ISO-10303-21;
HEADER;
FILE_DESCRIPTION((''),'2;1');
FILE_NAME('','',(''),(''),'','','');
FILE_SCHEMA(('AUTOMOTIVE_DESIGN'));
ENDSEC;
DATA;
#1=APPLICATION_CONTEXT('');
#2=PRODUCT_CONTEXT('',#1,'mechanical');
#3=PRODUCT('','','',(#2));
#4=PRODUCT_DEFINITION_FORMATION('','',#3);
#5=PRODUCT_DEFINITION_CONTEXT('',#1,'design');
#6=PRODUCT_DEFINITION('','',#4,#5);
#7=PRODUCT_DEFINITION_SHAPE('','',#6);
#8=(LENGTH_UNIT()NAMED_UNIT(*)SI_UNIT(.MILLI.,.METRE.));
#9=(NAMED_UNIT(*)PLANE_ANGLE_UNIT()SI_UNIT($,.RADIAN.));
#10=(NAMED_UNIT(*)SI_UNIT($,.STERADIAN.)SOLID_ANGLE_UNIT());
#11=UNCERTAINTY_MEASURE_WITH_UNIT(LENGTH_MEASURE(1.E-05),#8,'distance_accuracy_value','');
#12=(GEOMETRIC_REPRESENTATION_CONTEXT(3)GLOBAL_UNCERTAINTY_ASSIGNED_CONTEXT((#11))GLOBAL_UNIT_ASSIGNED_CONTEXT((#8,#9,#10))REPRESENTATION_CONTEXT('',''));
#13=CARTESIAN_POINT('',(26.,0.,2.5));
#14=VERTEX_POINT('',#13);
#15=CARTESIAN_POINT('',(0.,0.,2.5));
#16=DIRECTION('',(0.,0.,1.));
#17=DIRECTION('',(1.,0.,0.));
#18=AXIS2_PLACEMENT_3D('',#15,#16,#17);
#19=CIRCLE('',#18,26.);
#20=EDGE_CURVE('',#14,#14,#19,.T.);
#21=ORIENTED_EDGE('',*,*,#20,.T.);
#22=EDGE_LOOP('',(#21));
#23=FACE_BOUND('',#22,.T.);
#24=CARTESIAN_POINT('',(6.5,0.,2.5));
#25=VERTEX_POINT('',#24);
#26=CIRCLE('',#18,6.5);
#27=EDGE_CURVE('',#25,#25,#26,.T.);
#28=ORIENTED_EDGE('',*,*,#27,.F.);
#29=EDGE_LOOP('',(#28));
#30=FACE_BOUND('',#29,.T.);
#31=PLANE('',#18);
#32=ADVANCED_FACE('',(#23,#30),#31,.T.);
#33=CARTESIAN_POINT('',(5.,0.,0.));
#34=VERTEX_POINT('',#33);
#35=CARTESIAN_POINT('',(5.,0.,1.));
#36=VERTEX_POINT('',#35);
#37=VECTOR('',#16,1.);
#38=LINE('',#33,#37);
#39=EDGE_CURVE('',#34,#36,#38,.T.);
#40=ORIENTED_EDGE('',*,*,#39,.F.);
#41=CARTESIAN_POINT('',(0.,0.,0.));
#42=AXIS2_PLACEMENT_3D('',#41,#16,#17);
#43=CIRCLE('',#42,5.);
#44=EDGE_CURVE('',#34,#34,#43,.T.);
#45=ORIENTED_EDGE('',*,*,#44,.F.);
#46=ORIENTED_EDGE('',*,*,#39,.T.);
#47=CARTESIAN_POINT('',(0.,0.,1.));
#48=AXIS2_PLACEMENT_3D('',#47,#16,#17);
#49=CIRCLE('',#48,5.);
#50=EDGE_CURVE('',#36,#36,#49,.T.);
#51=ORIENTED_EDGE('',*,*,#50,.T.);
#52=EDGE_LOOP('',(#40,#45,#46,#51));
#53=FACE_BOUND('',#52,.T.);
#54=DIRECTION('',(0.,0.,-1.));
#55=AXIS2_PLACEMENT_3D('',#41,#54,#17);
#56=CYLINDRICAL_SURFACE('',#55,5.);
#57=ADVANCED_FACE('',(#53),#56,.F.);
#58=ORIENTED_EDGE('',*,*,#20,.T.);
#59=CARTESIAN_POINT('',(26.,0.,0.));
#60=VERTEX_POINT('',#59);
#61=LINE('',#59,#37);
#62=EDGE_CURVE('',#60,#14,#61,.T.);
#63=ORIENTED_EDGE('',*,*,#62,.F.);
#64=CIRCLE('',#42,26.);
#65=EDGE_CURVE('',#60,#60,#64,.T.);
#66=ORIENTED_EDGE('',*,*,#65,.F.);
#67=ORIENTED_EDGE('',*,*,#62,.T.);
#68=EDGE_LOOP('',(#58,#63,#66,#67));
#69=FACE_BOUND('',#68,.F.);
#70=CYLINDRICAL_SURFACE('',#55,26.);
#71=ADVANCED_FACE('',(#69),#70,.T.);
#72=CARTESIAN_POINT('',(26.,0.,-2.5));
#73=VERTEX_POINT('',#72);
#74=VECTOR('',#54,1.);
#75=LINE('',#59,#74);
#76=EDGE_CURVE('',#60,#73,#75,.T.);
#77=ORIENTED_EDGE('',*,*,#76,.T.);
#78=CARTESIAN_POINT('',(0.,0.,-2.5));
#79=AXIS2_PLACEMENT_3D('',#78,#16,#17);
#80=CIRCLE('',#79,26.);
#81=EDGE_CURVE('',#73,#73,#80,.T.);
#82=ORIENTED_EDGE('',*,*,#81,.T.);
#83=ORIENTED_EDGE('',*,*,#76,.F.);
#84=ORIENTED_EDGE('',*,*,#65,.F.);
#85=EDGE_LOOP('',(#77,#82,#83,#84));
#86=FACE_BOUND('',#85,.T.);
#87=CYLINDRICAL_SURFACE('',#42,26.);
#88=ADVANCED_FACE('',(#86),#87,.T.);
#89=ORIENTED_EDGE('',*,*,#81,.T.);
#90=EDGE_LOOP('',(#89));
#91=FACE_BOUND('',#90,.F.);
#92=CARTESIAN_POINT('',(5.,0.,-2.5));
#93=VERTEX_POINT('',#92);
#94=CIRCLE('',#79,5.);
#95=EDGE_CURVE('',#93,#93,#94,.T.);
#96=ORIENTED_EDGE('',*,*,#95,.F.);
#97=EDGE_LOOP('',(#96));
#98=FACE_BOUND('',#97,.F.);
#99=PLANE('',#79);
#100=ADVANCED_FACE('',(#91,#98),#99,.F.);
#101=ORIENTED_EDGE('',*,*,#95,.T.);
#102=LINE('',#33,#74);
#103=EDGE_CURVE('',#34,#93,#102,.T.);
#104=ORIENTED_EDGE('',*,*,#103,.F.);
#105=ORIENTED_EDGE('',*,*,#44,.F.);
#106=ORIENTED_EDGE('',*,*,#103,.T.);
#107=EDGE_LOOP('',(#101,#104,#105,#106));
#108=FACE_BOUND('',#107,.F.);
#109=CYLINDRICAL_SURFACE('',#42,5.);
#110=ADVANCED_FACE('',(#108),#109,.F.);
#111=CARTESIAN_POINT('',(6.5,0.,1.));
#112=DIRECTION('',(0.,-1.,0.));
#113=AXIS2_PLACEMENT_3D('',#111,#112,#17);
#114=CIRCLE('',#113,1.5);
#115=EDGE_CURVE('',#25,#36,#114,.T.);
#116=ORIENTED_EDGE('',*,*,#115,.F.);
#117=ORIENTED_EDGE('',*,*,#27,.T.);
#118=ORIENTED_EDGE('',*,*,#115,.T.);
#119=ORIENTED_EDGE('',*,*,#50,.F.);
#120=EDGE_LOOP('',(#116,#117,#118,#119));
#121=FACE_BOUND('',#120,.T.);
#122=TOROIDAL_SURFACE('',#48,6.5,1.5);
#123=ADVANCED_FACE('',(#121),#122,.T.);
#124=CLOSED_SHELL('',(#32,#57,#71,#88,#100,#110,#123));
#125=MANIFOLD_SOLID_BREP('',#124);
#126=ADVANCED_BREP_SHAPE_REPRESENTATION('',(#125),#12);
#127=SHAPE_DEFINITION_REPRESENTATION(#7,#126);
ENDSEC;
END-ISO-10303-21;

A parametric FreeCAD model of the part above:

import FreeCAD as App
import Part
import Sketcher
from FreeCAD import Vector
Q = App.Units.Quantity


def edges_at(feature, points):
    """Names of the edges that pass closest to the given points."""
    edges = feature.Shape.Edges
    near = lambda p: min(range(len(edges)), key=lambda i: edges[i].distToShape(Part.Vertex(*p))[0])
    return sorted({f"Edge{near(p) + 1}" for p in points})

doc = App.newDocument("Part")
params = doc.addObject("Spreadsheet::Sheet", "Params")
for row, (alias, value) in enumerate([
    ("sketch1_diameter", "52 mm"),
    ("sketch1_diameter2", "10 mm"),
    ("pad1_length", "5 mm"),
    ("fillet_radius", "1.5 mm"),
], start=1):
    params.set(f"A{row}", alias)
    params.set(f"B{row}", "=" + value)
    params.setAlias(f"B{row}", alias)

body = doc.addObject("PartDesign::Body", "Body")

# Sketch on XY plane
sketch1 = doc.addObject("Sketcher::SketchObject", "Sketch")
body.addObject(sketch1)
sketch1.AttachmentSupport = (doc.XY_Plane, [""])
sketch1.MapMode = "FlatFace"
sketch1.addGeometry(Part.Circle(Vector(0, 0, 0), Vector(0, 0, 1), 26), False)
sketch1.addGeometry(Part.Circle(Vector(0, 0, 0), Vector(0, 0, 1), 5), False)
sketch1.addConstraint(Sketcher.Constraint("Coincident", 0, 3, -1, 1))
sketch1.addConstraint(Sketcher.Constraint("Coincident", 1, 3, -1, 1))
sketch1.addConstraint(Sketcher.Constraint("Diameter", 0, Q("52 mm")))
sketch1.addConstraint(Sketcher.Constraint("Diameter", 1, Q("10 mm")))
sketch1.setExpression("Constraints[2]", "Params.sketch1_diameter")
sketch1.setExpression("Constraints[3]", "Params.sketch1_diameter2")
pad1 = doc.addObject("PartDesign::Pad", "Pad")
body.addObject(pad1)
pad1.Profile = sketch1
pad1.setExpression("Length", "Params.pad1_length")
pad1.Midplane = True
doc.recompute()

fillet = doc.addObject("PartDesign::Fillet", "Fillet")
body.addObject(fillet)
fillet.Base = (pad1, edges_at(pad1, [(-5, 0, 2.5)]))
fillet.setExpression("Radius", "Params.fillet_radius")

doc.recompute()
